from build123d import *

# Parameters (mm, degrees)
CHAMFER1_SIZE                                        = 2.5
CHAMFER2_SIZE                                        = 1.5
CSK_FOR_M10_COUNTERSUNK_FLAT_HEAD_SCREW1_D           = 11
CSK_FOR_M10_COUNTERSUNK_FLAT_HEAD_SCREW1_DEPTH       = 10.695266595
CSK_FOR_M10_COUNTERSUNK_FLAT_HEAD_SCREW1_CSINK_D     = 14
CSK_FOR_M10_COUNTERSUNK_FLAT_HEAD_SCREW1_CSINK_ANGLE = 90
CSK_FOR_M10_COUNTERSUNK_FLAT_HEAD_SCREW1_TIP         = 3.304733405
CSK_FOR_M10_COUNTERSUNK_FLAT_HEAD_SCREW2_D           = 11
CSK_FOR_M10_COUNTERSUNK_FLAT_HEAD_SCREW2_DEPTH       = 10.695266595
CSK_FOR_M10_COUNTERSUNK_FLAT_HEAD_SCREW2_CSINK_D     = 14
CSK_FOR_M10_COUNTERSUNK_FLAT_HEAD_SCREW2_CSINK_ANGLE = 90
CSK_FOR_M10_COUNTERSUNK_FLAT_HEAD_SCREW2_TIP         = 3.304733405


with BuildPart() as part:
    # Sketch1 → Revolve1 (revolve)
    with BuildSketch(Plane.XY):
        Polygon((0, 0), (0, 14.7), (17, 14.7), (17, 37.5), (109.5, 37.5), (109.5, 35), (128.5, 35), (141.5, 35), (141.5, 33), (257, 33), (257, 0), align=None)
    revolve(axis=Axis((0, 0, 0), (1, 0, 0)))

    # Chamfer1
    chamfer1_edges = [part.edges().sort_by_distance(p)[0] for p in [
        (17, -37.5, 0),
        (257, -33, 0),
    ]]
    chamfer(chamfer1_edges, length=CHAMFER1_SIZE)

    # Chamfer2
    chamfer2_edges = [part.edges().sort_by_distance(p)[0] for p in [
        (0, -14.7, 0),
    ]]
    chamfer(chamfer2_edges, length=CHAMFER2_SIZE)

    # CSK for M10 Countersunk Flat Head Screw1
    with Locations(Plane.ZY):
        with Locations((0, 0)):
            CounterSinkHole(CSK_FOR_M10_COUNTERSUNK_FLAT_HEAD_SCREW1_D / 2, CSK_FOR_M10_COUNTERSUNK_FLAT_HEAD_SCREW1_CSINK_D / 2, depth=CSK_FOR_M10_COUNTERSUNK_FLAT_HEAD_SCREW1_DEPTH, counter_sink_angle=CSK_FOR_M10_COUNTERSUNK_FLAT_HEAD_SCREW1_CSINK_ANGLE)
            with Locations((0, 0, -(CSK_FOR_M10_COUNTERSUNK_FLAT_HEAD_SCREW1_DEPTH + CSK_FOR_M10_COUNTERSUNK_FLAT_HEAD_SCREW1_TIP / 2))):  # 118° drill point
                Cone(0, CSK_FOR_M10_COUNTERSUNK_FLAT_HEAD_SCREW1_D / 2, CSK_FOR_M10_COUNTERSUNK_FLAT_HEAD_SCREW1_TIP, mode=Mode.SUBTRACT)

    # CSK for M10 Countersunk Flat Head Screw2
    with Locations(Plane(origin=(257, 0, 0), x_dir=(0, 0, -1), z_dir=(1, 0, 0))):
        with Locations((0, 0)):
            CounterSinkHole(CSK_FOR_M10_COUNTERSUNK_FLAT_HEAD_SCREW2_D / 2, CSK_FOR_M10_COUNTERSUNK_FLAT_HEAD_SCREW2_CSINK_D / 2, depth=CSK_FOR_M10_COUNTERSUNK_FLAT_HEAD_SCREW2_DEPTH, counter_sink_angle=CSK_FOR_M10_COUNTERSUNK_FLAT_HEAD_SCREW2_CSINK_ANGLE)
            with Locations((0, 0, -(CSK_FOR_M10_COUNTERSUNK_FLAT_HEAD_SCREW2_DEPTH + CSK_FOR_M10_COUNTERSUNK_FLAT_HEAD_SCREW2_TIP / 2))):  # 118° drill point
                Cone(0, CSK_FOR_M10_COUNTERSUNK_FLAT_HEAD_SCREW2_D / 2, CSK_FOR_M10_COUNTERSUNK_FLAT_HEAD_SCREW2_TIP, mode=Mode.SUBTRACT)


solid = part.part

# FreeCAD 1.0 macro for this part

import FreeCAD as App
import Part
import Sketcher

V = App.Vector


def edges_at(feature, points):
    """Names of the edges that pass closest to the given points."""
    edges = feature.Shape.Edges
    near = lambda p: min(range(len(edges)), key=lambda i: edges[i].distToShape(Part.Vertex(*p))[0])
    return sorted({f"Edge{near(p) + 1}" for p in points})

doc = App.newDocument("Part")
body = doc.addObject("PartDesign::Body", "Body")

sketch1 = body.newObject("Sketcher::SketchObject", "Sketch")
sketch1.AttachmentSupport = (doc.getObject("XY_Plane"), [""])
sketch1.MapMode = "FlatFace"
sketch1.addGeometry([
    Part.LineSegment(V(0, 14.7, 0), V(0, 0, 0)),
    Part.LineSegment(V(0, 0, 0), V(257, 0, 0)),
    Part.LineSegment(V(257, 0, 0), V(257, 33, 0)),
    Part.LineSegment(V(257, 33, 0), V(141.5, 33, 0)),
    Part.LineSegment(V(141.5, 33, 0), V(141.5, 35, 0)),
    Part.LineSegment(V(141.5, 35, 0), V(109.5, 35, 0)),
    Part.LineSegment(V(109.5, 35, 0), V(109.5, 37.5, 0)),
    Part.LineSegment(V(109.5, 37.5, 0), V(17, 37.5, 0)),
    Part.LineSegment(V(17, 37.5, 0), V(17, 14.7, 0)),
    Part.LineSegment(V(17, 14.7, 0), V(0, 14.7, 0)),
], False)
sketch1.addConstraint([
    Sketcher.Constraint("Coincident", 0, 2, 1, 1),
    Sketcher.Constraint("Coincident", 1, 2, 2, 1),
    Sketcher.Constraint("Coincident", 2, 2, 3, 1),
    Sketcher.Constraint("Coincident", 3, 2, 4, 1),
    Sketcher.Constraint("Coincident", 4, 2, 5, 1),
    Sketcher.Constraint("Coincident", 5, 2, 6, 1),
    Sketcher.Constraint("Coincident", 6, 2, 7, 1),
    Sketcher.Constraint("Coincident", 7, 2, 8, 1),
    Sketcher.Constraint("Coincident", 8, 2, 9, 1),
    Sketcher.Constraint("Coincident", 9, 2, 0, 1),
    Sketcher.Constraint("Vertical", 0),
    Sketcher.Constraint("Horizontal", 1),
    Sketcher.Constraint("Vertical", 2),
    Sketcher.Constraint("Horizontal", 3),
    Sketcher.Constraint("Vertical", 4),
    Sketcher.Constraint("Horizontal", 5),
    Sketcher.Constraint("Vertical", 6),
    Sketcher.Constraint("Horizontal", 7),
    Sketcher.Constraint("Vertical", 8),
    Sketcher.Constraint("Horizontal", 9),
    Sketcher.Constraint("Coincident", 0, 2, -1, 1),
    Sketcher.Constraint("DistanceX", 1, 1, 1, 2, 257.0),
    Sketcher.Constraint("DistanceX", 5, 2, 5, 1, 32.0),
    Sketcher.Constraint("DistanceX", 9, 2, 9, 1, 17.0),
    Sketcher.Constraint("DistanceY", 2, 1, 2, 2, 33.0),
    Sketcher.Constraint("DistanceY", 4, 1, 4, 2, 2.0),
    Sketcher.Constraint("DistanceX", 3, 2, 3, 1, 115.5),
    Sketcher.Constraint("DistanceY", 0, 2, 0, 1, 14.7),
    Sketcher.Constraint("DistanceY", 6, 1, 6, 2, 2.5),
])
revolution = body.newObject("PartDesign::Revolution", "Revolution")
revolution.Profile = sketch1
revolution.ReferenceAxis = (sketch1, ["H_Axis"])
revolution.Angle = 360
doc.recompute()

chamfer = body.newObject("PartDesign::Chamfer", "Chamfer")
chamfer.Base = (revolution, edges_at(revolution, [(17, -37.5, 0), (257, -33, 0)]))
chamfer.Size = 2.5
doc.recompute()

chamfer2 = body.newObject("PartDesign::Chamfer", "Chamfer001")
chamfer2.Base = (chamfer, edges_at(chamfer, [(0, -14.7, 0)]))
chamfer2.Size = 1.5

sketch2 = body.newObject("Sketcher::SketchObject", "Sketch001")
sketch2.AttachmentSupport = (doc.getObject("YZ_Plane"), [""])
sketch2.MapMode = "FlatFace"
sketch2.addGeometry(Part.Circle(V(0, 0, 0), V(0, 0, 1), 5.5), False)
sketch2.addConstraint([
    Sketcher.Constraint("Coincident", 0, 3, -1, 1),
    Sketcher.Constraint("Diameter", 0, 11.0),
])
doc.recompute()
hole = body.newObject("PartDesign::Hole", "Hole")
hole.Profile = sketch2
hole.ThreadType = "None"
hole.Diameter = 11
hole.DepthType = "Dimension"
hole.Depth = 10.695267
hole.DrillPoint = "Angled"
hole.DrillPointAngle = 118
hole.HoleCutType = "Countersink"
hole.HoleCutDiameter = 14
hole.HoleCutCountersinkAngle = 90
hole.Reversed = True

sketch3 = body.newObject("Sketcher::SketchObject", "Sketch002")
sketch3.AttachmentSupport = (doc.getObject("YZ_Plane"), [""])
sketch3.MapMode = "FlatFace"
sketch3.AttachmentOffset = App.Placement(V(0, 0, 257), App.Rotation())
sketch3.addGeometry(Part.Circle(V(0, 0, 0), V(0, 0, 1), 5.5), False)
sketch3.addConstraint([
    Sketcher.Constraint("Coincident", 0, 3, -1, 1),
    Sketcher.Constraint("Diameter", 0, 11.0),
])
doc.recompute()
hole2 = body.newObject("PartDesign::Hole", "Hole001")
hole2.Profile = sketch3
hole2.ThreadType = "None"
hole2.Diameter = 11
hole2.DepthType = "Dimension"
hole2.Depth = 10.695267
hole2.DrillPoint = "Angled"
hole2.DrillPointAngle = 118
hole2.HoleCutType = "Countersink"
hole2.HoleCutDiameter = 14
hole2.HoleCutCountersinkAngle = 90

doc.recompute()
